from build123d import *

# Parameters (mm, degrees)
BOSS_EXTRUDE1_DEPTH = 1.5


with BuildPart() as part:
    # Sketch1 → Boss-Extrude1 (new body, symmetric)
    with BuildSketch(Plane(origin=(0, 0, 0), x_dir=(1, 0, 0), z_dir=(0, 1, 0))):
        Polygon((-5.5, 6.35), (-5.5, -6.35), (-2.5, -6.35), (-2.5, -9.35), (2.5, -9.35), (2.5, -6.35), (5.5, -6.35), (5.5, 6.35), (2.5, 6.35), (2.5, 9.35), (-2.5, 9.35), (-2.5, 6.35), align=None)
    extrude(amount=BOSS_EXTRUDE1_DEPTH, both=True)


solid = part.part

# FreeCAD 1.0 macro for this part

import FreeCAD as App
import Part
import Sketcher

V = App.Vector
Q = App.Units.Quantity

doc = App.newDocument("Part")
body = doc.addObject("PartDesign::Body", "Body")

# Sketch on XZ plane
sketch1 = body.newObject("Sketcher::SketchObject", "Sketch")
sketch1.AttachmentSupport = (doc.getObject("XZ_Plane"), [""])
sketch1.MapMode = "FlatFace"
sketch1.addGeometry([
    Part.LineSegment(V(-5.5, -6.3, 0), V(-5.5, 6.3, 0)),  # 0
    Part.LineSegment(V(-5.5, 6.3, 0), V(-2.5, 6.3, 0)),  # 1
    Part.LineSegment(V(-2.5, 6.3, 0), V(-2.5, 9.3, 0)),  # 2
    Part.LineSegment(V(-2.5, 9.3, 0), V(2.5, 9.3, 0)),  # 3
    Part.LineSegment(V(2.5, 9.3, 0), V(2.5, 6.3, 0)),  # 4
    Part.LineSegment(V(2.5, 6.3, 0), V(5.5, 6.3, 0)),  # 5
    Part.LineSegment(V(5.5, 6.3, 0), V(5.5, -6.3, 0)),  # 6
    Part.LineSegment(V(5.5, -6.3, 0), V(2.5, -6.3, 0)),  # 7
    Part.LineSegment(V(2.5, -6.3, 0), V(2.5, -9.3, 0)),  # 8
    Part.LineSegment(V(2.5, -9.3, 0), V(-2.5, -9.3, 0)),  # 9
    Part.LineSegment(V(-2.5, -9.3, 0), V(-2.5, -6.3, 0)),  # 10
    Part.LineSegment(V(-2.5, -6.3, 0), V(-5.5, -6.3, 0)),  # 11
], False)
sketch1.addConstraint([
    Sketcher.Constraint("Coincident", 0, 2, 1, 1),
    Sketcher.Constraint("Coincident", 1, 2, 2, 1),
    Sketcher.Constraint("Coincident", 2, 2, 3, 1),
    Sketcher.Constraint("Coincident", 3, 2, 4, 1),
    Sketcher.Constraint("Coincident", 4, 2, 5, 1),
    Sketcher.Constraint("Coincident", 5, 2, 6, 1),
    Sketcher.Constraint("Coincident", 6, 2, 7, 1),
    Sketcher.Constraint("Coincident", 7, 2, 8, 1),
    Sketcher.Constraint("Coincident", 8, 2, 9, 1),
    Sketcher.Constraint("Coincident", 9, 2, 10, 1),
    Sketcher.Constraint("Coincident", 10, 2, 11, 1),
    Sketcher.Constraint("Coincident", 11, 2, 0, 1),
    Sketcher.Constraint("Vertical", 0),
    Sketcher.Constraint("Horizontal", 1),
    Sketcher.Constraint("Vertical", 2),
    Sketcher.Constraint("Horizontal", 3),
    Sketcher.Constraint("Vertical", 4),
    Sketcher.Constraint("Horizontal", 5),
    Sketcher.Constraint("Vertical", 6),
    Sketcher.Constraint("Horizontal", 7),
    Sketcher.Constraint("Vertical", 8),
    Sketcher.Constraint("Horizontal", 9),
    Sketcher.Constraint("Vertical", 10),
    Sketcher.Constraint("Horizontal", 11),
    Sketcher.Constraint("Symmetric", 0, 2, 6, 2, -1, 1),
    Sketcher.Constraint("Symmetric", 2, 2, 8, 2, -1, 1),
    Sketcher.Constraint("Symmetric", 4, 2, 10, 2, -1, 1),
    Sketcher.Constraint("Symmetric", 1, 2, 4, 2, -2),
    Sketcher.Constraint("Equal", 11, 2),
    Sketcher.Constraint("DistanceX", 1, 1, 1, 2, Q("3 mm")),
    Sketcher.Constraint("DistanceX", 3, 1, 3, 2, Q("5 mm")),
    Sketcher.Constraint("DistanceY", 0, 1, 0, 2, Q("12.7 mm")),
])
pad1 = body.newObject("PartDesign::Pad", "Pad")
pad1.Profile = sketch1
pad1.Length = 3
pad1.Midplane = True

doc.recompute()
